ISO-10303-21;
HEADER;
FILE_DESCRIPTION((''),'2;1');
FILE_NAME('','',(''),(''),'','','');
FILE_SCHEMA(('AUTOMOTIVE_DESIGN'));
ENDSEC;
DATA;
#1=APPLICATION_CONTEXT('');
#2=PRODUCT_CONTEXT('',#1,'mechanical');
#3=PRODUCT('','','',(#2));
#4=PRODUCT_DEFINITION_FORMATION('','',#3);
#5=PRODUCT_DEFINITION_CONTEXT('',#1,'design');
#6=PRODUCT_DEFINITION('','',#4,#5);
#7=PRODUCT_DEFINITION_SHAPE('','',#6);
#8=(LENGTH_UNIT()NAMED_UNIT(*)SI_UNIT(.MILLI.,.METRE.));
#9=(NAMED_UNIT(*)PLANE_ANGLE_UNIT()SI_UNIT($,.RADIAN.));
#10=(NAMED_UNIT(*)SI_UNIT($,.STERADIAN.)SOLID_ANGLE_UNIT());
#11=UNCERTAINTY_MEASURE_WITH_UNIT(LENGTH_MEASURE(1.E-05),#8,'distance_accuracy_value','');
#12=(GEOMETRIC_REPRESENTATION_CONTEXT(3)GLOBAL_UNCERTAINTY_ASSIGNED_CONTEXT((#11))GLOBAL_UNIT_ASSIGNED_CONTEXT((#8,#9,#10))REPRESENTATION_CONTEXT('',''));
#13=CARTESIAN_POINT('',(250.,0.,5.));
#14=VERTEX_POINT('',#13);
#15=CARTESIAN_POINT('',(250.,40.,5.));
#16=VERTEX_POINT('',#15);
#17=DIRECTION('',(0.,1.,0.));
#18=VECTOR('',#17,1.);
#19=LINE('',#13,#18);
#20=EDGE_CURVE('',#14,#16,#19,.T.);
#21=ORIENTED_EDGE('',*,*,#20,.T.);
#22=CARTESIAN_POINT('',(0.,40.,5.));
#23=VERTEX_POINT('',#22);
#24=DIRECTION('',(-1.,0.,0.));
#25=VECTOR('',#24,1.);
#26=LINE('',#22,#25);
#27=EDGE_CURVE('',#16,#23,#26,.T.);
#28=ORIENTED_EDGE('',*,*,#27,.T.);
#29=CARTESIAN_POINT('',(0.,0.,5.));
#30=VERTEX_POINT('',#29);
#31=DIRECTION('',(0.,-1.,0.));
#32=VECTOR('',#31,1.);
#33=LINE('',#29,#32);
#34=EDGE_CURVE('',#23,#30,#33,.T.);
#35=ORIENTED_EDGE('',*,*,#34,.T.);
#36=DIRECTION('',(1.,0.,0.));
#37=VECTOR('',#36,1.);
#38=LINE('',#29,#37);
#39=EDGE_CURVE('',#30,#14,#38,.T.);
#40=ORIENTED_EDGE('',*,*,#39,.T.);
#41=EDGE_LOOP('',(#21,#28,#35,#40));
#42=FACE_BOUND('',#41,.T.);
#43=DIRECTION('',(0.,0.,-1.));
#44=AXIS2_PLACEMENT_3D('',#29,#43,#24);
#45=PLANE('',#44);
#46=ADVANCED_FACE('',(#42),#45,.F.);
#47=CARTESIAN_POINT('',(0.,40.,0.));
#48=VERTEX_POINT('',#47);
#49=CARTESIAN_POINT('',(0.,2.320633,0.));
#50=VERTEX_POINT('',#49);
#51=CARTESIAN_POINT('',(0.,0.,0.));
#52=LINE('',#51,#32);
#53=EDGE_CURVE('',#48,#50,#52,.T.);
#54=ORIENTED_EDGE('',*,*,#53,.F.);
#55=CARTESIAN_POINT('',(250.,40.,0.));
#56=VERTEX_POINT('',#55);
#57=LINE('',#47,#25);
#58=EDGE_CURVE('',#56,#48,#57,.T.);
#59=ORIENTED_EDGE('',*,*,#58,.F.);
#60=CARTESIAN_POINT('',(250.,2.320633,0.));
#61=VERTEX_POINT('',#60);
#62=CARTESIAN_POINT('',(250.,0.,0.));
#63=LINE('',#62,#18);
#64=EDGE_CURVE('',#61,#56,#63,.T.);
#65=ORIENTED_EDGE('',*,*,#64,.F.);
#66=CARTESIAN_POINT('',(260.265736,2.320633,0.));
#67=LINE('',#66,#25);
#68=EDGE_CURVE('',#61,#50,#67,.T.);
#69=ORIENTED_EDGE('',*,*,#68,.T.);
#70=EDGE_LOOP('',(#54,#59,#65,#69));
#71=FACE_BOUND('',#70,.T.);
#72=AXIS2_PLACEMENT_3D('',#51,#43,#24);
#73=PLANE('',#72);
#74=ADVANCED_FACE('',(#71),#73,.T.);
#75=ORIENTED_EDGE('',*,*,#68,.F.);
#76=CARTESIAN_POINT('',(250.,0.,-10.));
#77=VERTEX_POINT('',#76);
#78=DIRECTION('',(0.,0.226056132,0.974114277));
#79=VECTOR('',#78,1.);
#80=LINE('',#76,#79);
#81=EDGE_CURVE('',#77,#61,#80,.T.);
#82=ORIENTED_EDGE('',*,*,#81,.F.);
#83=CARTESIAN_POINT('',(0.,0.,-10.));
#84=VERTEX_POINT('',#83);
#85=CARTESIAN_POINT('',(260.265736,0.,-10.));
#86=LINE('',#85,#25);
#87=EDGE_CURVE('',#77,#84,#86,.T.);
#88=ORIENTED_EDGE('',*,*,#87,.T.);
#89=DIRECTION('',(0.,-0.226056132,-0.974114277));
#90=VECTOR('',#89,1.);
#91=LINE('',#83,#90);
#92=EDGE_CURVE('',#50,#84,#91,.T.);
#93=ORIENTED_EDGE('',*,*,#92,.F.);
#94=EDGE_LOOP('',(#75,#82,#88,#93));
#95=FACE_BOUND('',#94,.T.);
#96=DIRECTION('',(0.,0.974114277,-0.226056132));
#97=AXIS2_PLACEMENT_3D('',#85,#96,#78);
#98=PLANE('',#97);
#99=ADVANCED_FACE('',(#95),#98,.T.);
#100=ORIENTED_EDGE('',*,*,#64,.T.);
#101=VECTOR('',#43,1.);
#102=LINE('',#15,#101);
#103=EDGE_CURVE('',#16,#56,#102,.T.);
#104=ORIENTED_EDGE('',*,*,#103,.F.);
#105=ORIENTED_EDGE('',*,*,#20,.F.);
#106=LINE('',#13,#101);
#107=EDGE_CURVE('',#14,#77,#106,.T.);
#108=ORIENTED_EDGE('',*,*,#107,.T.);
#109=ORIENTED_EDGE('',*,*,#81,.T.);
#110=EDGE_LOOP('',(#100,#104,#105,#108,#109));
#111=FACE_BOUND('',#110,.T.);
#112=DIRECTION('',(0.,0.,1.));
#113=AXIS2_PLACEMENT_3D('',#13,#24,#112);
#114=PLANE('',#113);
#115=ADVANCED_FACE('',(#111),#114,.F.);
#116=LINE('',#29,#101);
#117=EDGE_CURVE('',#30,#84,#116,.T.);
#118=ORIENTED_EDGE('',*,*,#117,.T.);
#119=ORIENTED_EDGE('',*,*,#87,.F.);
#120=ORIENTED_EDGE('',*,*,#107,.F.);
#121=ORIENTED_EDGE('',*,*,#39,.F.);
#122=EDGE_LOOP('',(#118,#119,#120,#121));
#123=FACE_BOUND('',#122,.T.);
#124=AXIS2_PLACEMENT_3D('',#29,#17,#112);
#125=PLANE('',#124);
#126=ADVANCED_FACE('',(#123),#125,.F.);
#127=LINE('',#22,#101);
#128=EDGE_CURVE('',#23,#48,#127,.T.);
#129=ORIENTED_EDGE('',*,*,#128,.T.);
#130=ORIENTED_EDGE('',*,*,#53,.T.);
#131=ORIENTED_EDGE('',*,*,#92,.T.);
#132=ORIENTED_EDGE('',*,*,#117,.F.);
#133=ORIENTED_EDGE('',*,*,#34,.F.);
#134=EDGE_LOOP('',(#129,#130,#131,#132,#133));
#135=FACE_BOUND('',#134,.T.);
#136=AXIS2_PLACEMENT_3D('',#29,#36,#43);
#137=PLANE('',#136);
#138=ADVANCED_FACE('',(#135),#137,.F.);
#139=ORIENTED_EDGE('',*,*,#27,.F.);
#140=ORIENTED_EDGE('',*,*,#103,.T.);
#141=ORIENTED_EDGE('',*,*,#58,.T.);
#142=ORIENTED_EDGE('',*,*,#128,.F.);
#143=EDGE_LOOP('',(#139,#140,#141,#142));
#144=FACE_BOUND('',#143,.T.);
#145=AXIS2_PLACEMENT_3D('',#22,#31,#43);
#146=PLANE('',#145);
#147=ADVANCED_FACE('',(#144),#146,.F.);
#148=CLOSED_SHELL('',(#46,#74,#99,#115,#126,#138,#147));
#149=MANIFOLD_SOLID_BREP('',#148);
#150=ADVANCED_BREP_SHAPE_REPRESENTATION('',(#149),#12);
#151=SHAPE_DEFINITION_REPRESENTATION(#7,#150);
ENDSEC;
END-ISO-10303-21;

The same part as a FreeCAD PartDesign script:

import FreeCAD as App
import Part
import Sketcher

doc = App.newDocument("Part")
body = doc.addObject("PartDesign::Body", "Body")

# Sketch on XY plane
sketch1 = body.newObject("Sketcher::SketchObject", "Sketch")
sketch1.AttachmentSupport = (doc.getObject("XY_Plane"), [""])
sketch1.MapMode = "FlatFace"
sketch1.addGeometry(Part.LineSegment(App.Vector(0, 40, 0), App.Vector(0, 0, 0)), False)
sketch1.addGeometry(Part.LineSegment(App.Vector(0, 0, 0), App.Vector(250, 0, 0)), False)
sketch1.addGeometry(Part.LineSegment(App.Vector(250, 0, 0), App.Vector(250, 40, 0)), False)
sketch1.addGeometry(Part.LineSegment(App.Vector(250, 40, 0), App.Vector(0, 40, 0)), False)
sketch1.addConstraint(Sketcher.Constraint("Coincident", 0, 2, 1, 1))
sketch1.addConstraint(Sketcher.Constraint("Coincident", 1, 2, 2, 1))
sketch1.addConstraint(Sketcher.Constraint("Coincident", 2, 2, 3, 1))
sketch1.addConstraint(Sketcher.Constraint("Coincident", 3, 2, 0, 1))
sketch1.addConstraint(Sketcher.Constraint("Vertical", 0))
sketch1.addConstraint(Sketcher.Constraint("Horizontal", 1))
sketch1.addConstraint(Sketcher.Constraint("Vertical", 2))
sketch1.addConstraint(Sketcher.Constraint("Horizontal", 3))
sketch1.addConstraint(Sketcher.Constraint("Coincident", 0, 2, -1, 1))
sketch1.addConstraint(Sketcher.Constraint("DistanceX", 1, 1, 1, 2, 250.0))
sketch1.addConstraint(Sketcher.Constraint("DistanceY", 0, 2, 0, 1, 40.0))
pad1 = body.newObject("PartDesign::Pad", "Pad")
pad1.Profile = sketch1
pad1.Length = 5

# Sketch on YZ plane
sketch2 = body.newObject("Sketcher::SketchObject", "Sketch001")
sketch2.AttachmentSupport = (doc.getObject("YZ_Plane"), [""])
sketch2.MapMode = "FlatFace"
sketch2.addGeometry(Part.LineSegment(App.Vector(0, -10, 0), App.Vector(0, 0, 0)), False)
sketch2.addGeometry(Part.LineSegment(App.Vector(0, 0, 0), App.Vector(2.320633, 0, 0)), False)
sketch2.addGeometry(Part.LineSegment(App.Vector(2.320633, 0, 0), App.Vector(0, -10, 0)), False)
sketch2.addConstraint(Sketcher.Constraint("Coincident", 0, 2, 1, 1))
sketch2.addConstraint(Sketcher.Constraint("Coincident", 1, 2, 2, 1))
sketch2.addConstraint(Sketcher.Constraint("Coincident", 2, 2, 0, 1))
sketch2.addConstraint(Sketcher.Constraint("Vertical", 0))
sketch2.addConstraint(Sketcher.Constraint("Horizontal", 1))
sketch2.addConstraint(Sketcher.Constraint("Coincident", 0, 2, -1, 1))
sketch2.addConstraint(Sketcher.Constraint("DistanceY", 0, 1, 0, 2, 10.0))
sketch2.addConstraint(Sketcher.Constraint("DistanceX", 1, 1, 1, 2, 2.320633))
pad2 = body.newObject("PartDesign::Pad", "Pad001")
pad2.Profile = sketch2
pad2.Length = 250

doc.recompute()
